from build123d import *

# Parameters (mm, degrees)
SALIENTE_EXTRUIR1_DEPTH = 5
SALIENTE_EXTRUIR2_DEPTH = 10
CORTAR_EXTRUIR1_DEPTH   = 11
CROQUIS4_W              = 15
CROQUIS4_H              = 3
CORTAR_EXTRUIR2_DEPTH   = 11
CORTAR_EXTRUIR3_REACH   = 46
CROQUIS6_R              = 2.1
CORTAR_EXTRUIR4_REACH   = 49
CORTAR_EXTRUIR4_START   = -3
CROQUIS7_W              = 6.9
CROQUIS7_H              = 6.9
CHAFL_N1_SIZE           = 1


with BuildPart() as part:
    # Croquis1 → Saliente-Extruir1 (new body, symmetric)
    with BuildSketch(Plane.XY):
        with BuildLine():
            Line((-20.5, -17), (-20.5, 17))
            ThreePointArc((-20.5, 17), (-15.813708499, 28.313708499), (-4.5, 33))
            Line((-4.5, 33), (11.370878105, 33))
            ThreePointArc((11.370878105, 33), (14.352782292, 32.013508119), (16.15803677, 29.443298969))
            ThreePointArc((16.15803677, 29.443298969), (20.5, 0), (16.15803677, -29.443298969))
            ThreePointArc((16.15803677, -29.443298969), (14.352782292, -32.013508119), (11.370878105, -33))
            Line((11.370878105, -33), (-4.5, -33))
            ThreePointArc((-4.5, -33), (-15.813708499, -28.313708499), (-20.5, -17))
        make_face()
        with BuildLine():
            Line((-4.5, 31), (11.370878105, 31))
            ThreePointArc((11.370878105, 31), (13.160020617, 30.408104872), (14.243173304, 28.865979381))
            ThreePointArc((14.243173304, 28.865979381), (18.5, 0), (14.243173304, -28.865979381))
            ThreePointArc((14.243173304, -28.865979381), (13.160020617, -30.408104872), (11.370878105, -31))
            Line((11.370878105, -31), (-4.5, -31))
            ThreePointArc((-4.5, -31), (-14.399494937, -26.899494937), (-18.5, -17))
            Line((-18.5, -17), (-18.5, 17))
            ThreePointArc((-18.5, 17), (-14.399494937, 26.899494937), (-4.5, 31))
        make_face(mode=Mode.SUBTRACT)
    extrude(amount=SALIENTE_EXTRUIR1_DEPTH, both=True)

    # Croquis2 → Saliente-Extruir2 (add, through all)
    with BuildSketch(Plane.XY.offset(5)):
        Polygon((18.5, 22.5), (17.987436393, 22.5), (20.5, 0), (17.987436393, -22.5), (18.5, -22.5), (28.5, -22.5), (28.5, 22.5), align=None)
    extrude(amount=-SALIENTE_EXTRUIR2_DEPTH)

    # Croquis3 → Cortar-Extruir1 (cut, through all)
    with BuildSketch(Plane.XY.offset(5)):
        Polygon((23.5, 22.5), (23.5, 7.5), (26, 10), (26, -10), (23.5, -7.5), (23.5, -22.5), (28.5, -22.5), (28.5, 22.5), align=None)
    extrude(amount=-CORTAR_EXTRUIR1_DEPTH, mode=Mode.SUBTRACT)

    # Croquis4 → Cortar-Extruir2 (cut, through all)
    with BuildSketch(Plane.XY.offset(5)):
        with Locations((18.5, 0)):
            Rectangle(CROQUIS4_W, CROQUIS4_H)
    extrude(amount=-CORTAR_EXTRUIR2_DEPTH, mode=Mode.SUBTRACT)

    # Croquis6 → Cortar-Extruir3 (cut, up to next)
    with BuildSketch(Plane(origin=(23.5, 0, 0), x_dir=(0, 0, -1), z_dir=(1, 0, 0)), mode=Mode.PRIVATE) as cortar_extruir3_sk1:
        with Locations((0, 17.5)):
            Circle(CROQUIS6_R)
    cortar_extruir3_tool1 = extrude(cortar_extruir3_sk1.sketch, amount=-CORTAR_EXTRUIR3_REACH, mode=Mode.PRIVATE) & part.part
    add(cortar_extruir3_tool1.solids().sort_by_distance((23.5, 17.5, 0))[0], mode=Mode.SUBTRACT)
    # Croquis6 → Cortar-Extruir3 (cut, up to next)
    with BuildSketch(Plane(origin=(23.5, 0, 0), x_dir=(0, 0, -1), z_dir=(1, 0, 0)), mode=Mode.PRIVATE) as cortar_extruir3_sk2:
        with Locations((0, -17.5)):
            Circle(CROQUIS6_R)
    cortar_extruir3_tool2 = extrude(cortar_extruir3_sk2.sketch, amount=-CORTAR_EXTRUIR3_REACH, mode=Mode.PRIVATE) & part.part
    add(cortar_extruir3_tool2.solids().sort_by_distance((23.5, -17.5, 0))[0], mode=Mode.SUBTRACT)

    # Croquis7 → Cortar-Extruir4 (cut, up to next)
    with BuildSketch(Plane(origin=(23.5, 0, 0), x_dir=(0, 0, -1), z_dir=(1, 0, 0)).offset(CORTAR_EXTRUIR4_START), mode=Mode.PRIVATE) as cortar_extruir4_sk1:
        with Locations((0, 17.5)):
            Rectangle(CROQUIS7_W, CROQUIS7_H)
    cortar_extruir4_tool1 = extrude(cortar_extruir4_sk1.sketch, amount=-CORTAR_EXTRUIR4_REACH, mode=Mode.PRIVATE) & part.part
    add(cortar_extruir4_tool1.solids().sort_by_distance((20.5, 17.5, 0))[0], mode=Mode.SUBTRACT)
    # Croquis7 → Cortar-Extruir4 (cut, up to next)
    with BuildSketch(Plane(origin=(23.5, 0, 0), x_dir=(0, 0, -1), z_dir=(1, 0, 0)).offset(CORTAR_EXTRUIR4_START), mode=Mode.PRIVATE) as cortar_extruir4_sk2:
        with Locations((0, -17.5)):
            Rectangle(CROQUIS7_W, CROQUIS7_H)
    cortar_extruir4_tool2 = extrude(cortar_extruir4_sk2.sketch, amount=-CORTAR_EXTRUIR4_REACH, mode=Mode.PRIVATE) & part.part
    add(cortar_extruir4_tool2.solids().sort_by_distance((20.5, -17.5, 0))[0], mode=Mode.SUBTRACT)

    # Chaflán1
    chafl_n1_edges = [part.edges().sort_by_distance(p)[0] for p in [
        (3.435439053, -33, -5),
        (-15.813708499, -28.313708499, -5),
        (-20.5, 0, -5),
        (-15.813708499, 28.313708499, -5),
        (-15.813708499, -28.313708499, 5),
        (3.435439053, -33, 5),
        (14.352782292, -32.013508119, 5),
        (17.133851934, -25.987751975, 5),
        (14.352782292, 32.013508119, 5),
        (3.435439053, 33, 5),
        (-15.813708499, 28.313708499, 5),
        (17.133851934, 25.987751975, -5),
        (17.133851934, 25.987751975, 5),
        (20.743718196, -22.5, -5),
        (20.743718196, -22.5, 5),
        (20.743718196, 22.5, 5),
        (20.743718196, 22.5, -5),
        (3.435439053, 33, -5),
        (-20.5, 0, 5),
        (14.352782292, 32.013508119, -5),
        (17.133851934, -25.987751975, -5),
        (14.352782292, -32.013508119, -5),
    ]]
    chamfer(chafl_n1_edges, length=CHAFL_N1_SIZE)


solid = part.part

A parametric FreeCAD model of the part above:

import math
import FreeCAD as App
import Part
import Sketcher


def edges_at(feature, points):
    """Names of the edges that pass closest to the given points."""
    edges = feature.Shape.Edges
    near = lambda p: min(range(len(edges)), key=lambda i: edges[i].distToShape(Part.Vertex(*p))[0])
    return sorted({f"Edge{near(p) + 1}" for p in points})


def add_polygon(sketch, points):
    """Adds a closed chain of lines whose ends are joined by coincident constraints."""
    first, n = sketch.GeometryCount, len(points)
    for a, b in zip(points, points[1:] + points[:1]):
        sketch.addGeometry(Part.LineSegment(App.Vector(*a, 0), App.Vector(*b, 0)), False)
    for i in range(n):
        sketch.addConstraint(Sketcher.Constraint("Coincident", first + i, 2, first + (i + 1) % n, 1))

doc = App.newDocument("Part")
params = doc.addObject("Spreadsheet::Sheet", "Params")
for row, (alias, value) in enumerate([
    ("sketch1_radius", "16 mm"),
    ("sketch1_radius2", "5 mm"),
    ("sketch1_radius3", "102 mm"),
    ("sketch1_radius4", "3 mm"),
    ("sketch1_height", "34 mm"),
    ("pad1_length", "10 mm"),
    ("sketch2_height", "45 mm"),
    ("pad2_length", "10 mm"),
    ("sketch3_width", "5 mm"),
    ("sketch3_height", "15 mm"),
    ("sketch3_height2", "20 mm"),
    ("sketch3_height3", "45 mm"),
    ("sketch4_width", "15 mm"),
    ("sketch4_height", "3 mm"),
    ("sketch5_diameter", "4.2 mm"),
    ("sketch6_diameter", "4.2 mm"),
    ("sketch7_width", "6.9 mm"),
    ("pocket5_length", "4.219135 mm"),
    ("sketch8_width", "6.9 mm"),
    ("pocket6_length", "4.219135 mm"),
    ("chamfer_size", "1 mm"),
], start=1):
    params.set(f"A{row}", alias)
    params.set(f"B{row}", "=" + value)
    params.setAlias(f"B{row}", alias)

body = doc.addObject("PartDesign::Body", "Body")

# Sketch on XY plane
sketch1 = body.newObject("Sketcher::SketchObject", "Sketch")
sketch1.AttachmentSupport = (doc.getObject("XY_Plane"), [""])
sketch1.MapMode = "FlatFace"
sketch1.addGeometry([
    Part.LineSegment(App.Vector(-20.5, 17, 0), App.Vector(-20.5, -17, 0)),  # 0
    Part.ArcOfCircle(Part.Circle(App.Vector(-4.5, -17, 0), App.Vector(0, 0, 1), 16), math.radians(180), math.radians(270)),  # 1
    Part.LineSegment(App.Vector(-4.5, -33, 0), App.Vector(11.4, -33, 0)),  # 2
    Part.ArcOfCircle(Part.Circle(App.Vector(11.4, -28, 0), App.Vector(0, 0, 1), 5), math.radians(-90), math.radians(-17)),  # 3
    Part.ArcOfCircle(Part.Circle(App.Vector(-81.5, 0, 0), App.Vector(0, 0, 1), 102), math.radians(-17), math.radians(17)),  # 4
    Part.ArcOfCircle(Part.Circle(App.Vector(11.4, 28, 0), App.Vector(0, 0, 1), 5), math.radians(17), math.radians(90)),  # 5
    Part.LineSegment(App.Vector(11.4, 33, 0), App.Vector(-4.5, 33, 0)),  # 6
    Part.ArcOfCircle(Part.Circle(App.Vector(-4.5, 17, 0), App.Vector(0, 0, 1), 16), math.radians(90), math.radians(180)),  # 7
    Part.LineSegment(App.Vector(-4.5, 31, 0), App.Vector(11.4, 31, 0)),  # 8
    Part.ArcOfCircle(Part.Circle(App.Vector(11.4, 28, 0), App.Vector(0, 0, 1), 3), math.radians(17), math.radians(90)),  # 9
    Part.ArcOfCircle(Part.Circle(App.Vector(-81.5, 0, 0), App.Vector(0, 0, 1), 100), math.radians(-17), math.radians(17)),  # 10
    Part.ArcOfCircle(Part.Circle(App.Vector(11.4, -28, 0), App.Vector(0, 0, 1), 3), math.radians(-90), math.radians(-17)),  # 11
    Part.LineSegment(App.Vector(11.4, -31, 0), App.Vector(-4.5, -31, 0)),  # 12
    Part.ArcOfCircle(Part.Circle(App.Vector(-4.5, -17, 0), App.Vector(0, 0, 1), 14), math.radians(180), math.radians(270)),  # 13
    Part.LineSegment(App.Vector(-18.5, -17, 0), App.Vector(-18.5, 17, 0)),  # 14
    Part.ArcOfCircle(Part.Circle(App.Vector(-4.5, 17, 0), App.Vector(0, 0, 1), 14), math.radians(90), math.radians(180)),  # 15
], False)
sketch1.addConstraint([
    Sketcher.Constraint("Tangent", 0, 2, 1, 1),
    Sketcher.Constraint("Tangent", 1, 2, 2, 1),
    Sketcher.Constraint("Tangent", 2, 2, 3, 1),
    Sketcher.Constraint("Tangent", 3, 2, 4, 1),
    Sketcher.Constraint("Tangent", 4, 2, 5, 1),
    Sketcher.Constraint("Tangent", 5, 2, 6, 1),
    Sketcher.Constraint("Tangent", 6, 2, 7, 1),
    Sketcher.Constraint("Tangent", 7, 2, 0, 1),
    Sketcher.Constraint("Tangent", 8, 2, 9, 2),
    Sketcher.Constraint("Tangent", 9, 1, 10, 2),
    Sketcher.Constraint("Tangent", 10, 1, 11, 2),
    Sketcher.Constraint("Tangent", 11, 1, 12, 1),
    Sketcher.Constraint("Tangent", 12, 2, 13, 2),
    Sketcher.Constraint("Tangent", 13, 1, 14, 1),
    Sketcher.Constraint("Tangent", 14, 2, 15, 2),
    Sketcher.Constraint("Tangent", 15, 1, 8, 1),
    Sketcher.Constraint("Vertical", 0),
    Sketcher.Constraint("Horizontal", 2),
    Sketcher.Constraint("Horizontal", 6),
    Sketcher.Constraint("Horizontal", 8),
    Sketcher.Constraint("Horizontal", 12),
    Sketcher.Constraint("Vertical", 14),
    Sketcher.Constraint("Coincident", 9, 3, 5, 3),
    Sketcher.Constraint("Coincident", 10, 3, 4, 3),
    Sketcher.Constraint("Coincident", 11, 3, 3, 3),
    Sketcher.Constraint("Coincident", 13, 3, 1, 3),
    Sketcher.Constraint("Equal", 3, 5),
    Sketcher.Constraint("Equal", 1, 7),
    Sketcher.Constraint("Equal", 13, 15),
    Sketcher.Constraint("Symmetric", 3, 3, 5, 3, -1),
    Sketcher.Constraint("Radius", 1, 16.0),
    Sketcher.Constraint("Radius", 3, 5.0),
    Sketcher.Constraint("Radius", 4, 102.0),
    Sketcher.Constraint("Radius", 9, 3.0),
    Sketcher.Constraint("DistanceY", 0, 2, 0, 1, 34.0),
    Sketcher.Constraint("DistanceX", 4, 3, 1, 3, 77.0),
    Sketcher.Constraint("DistanceX", 1, 3, -1, 1, 4.5),
])
sketch1.setExpression("Constraints[30]", "Params.sketch1_radius")
sketch1.setExpression("Constraints[31]", "Params.sketch1_radius2")
sketch1.setExpression("Constraints[32]", "Params.sketch1_radius3")
sketch1.setExpression("Constraints[33]", "Params.sketch1_radius4")
sketch1.setExpression("Constraints[34]", "Params.sketch1_height")
pad1 = body.newObject("PartDesign::Pad", "Pad")
pad1.Profile = sketch1
pad1.setExpression("Length", "Params.pad1_length")
pad1.Midplane = True

# Sketch on XY plane
sketch2 = body.newObject("Sketcher::SketchObject", "Sketch001")
sketch2.AttachmentSupport = (doc.getObject("XY_Plane"), [""])
sketch2.MapMode = "FlatFace"
sketch2.AttachmentOffset = App.Placement(App.Vector(0, 0, 5), App.Rotation())
add_polygon(sketch2, [(18, 22), (20, 0), (18, -22), (28, -22), (28, 22)])  # lines 0-4
sketch2.addConstraint([
    Sketcher.Constraint("Horizontal", 2),
    Sketcher.Constraint("Vertical", 3),
    Sketcher.Constraint("Horizontal", 4),
    Sketcher.Constraint("Symmetric", 1, 2, 4, 2, -1),
    Sketcher.Constraint("PointOnObject", 0, 2, -1),
    Sketcher.Constraint("DistanceY", 3, 1, 3, 2, 45.0),
    Sketcher.Constraint("DistanceX", 0, 2, 2, 2, 8.0),
    Sketcher.Constraint("DistanceX", -1, 1, 0, 2, 20.5),
    Sketcher.Constraint("DistanceX", 2, 1, 2, 2, 10.512564),
])
sketch2.setExpression("Constraints[10]", "Params.sketch2_height")
pad2 = body.newObject("PartDesign::Pad", "Pad001")
pad2.Profile = sketch2
pad2.setExpression("Length", "Params.pad2_length")
pad2.Reversed = True

# Sketch on XY plane
sketch3 = body.newObject("Sketcher::SketchObject", "Sketch002")
sketch3.AttachmentSupport = (doc.getObject("XY_Plane"), [""])
sketch3.MapMode = "FlatFace"
sketch3.AttachmentOffset = App.Placement(App.Vector(0, 0, 5), App.Rotation())
add_polygon(sketch3, [(23.5, 22.5), (23.5, 7.5), (26, 10), (26, -10), (23.5, -7.5), (23.5, -22.5), (28.5, -22.5), (28.5, 22.5)])  # lines 0-7
sketch3.addConstraint([
    Sketcher.Constraint("Vertical", 0),
    Sketcher.Constraint("Vertical", 2),
    Sketcher.Constraint("Vertical", 4),
    Sketcher.Constraint("Horizontal", 5),
    Sketcher.Constraint("Vertical", 6),
    Sketcher.Constraint("Horizontal", 7),
    Sketcher.Constraint("Symmetric", 0, 2, 3, 2, -1),
    Sketcher.Constraint("Perpendicular", 1, 3),
    Sketcher.Constraint("Equal", 0, 4),
    Sketcher.Constraint("Equal", 1, 3),
    Sketcher.Constraint("DistanceX", 5, 1, 5, 2, 5.0),
    Sketcher.Constraint("DistanceY", 0, 2, 0, 1, 15.0),
    Sketcher.Constraint("DistanceY", 2, 2, 2, 1, 20.0),
    Sketcher.Constraint("DistanceY", 6, 1, 6, 2, 45.0),
    Sketcher.Constraint("DistanceX", -1, 1, 1, 2, 26.0),
])
sketch3.setExpression("Constraints[18]", "Params.sketch3_width")
sketch3.setExpression("Constraints[19]", "Params.sketch3_height")
sketch3.setExpression("Constraints[20]", "Params.sketch3_height2")
sketch3.setExpression("Constraints[21]", "Params.sketch3_height3")
pocket1 = body.newObject("PartDesign::Pocket", "Pocket")
pocket1.Profile = sketch3
pocket1.Type = "ThroughAll"

# Sketch on XY plane
sketch4 = body.newObject("Sketcher::SketchObject", "Sketch003")
sketch4.AttachmentSupport = (doc.getObject("XY_Plane"), [""])
sketch4.MapMode = "FlatFace"
sketch4.AttachmentOffset = App.Placement(App.Vector(0, 0, 5), App.Rotation())
add_polygon(sketch4, [(11, 1.5), (11, -1.5), (26, -1.5), (26, 1.5)])  # lines 0-3
sketch4.addConstraint([
    Sketcher.Constraint("Vertical", 0),
    Sketcher.Constraint("Horizontal", 1),
    Sketcher.Constraint("Vertical", 2),
    Sketcher.Constraint("Horizontal", 3),
    Sketcher.Constraint("DistanceX", 1, 1, 1, 2, 15.0),
    Sketcher.Constraint("DistanceY", 0, 2, 0, 1, 3.0),
    Sketcher.Constraint("DistanceX", -1, 1, 0, 2, 11.0),
    Sketcher.Constraint("DistanceY", 0, 2, -1, 1, 1.5),
])
sketch4.setExpression("Constraints[8]", "Params.sketch4_width")
sketch4.setExpression("Constraints[9]", "Params.sketch4_height")
pocket2 = body.newObject("PartDesign::Pocket", "Pocket001")
pocket2.Profile = sketch4
pocket2.Type = "ThroughAll"

# Sketch on YZ plane
sketch5 = body.newObject("Sketcher::SketchObject", "Sketch004")
sketch5.AttachmentSupport = (doc.getObject("YZ_Plane"), [""])
sketch5.MapMode = "FlatFace"
sketch5.AttachmentOffset = App.Placement(App.Vector(0, 0, 23.5), App.Rotation())
sketch5.addGeometry(Part.Circle(App.Vector(17.5, 0, 0), App.Vector(0, 0, 1), 2.1), False)
sketch5.addConstraint([
    Sketcher.Constraint("PointOnObject", 0, 3, -1),
    Sketcher.Constraint("Diameter", 0, 4.2),
    Sketcher.Constraint("DistanceX", -1, 1, 0, 3, 17.5),
])
sketch5.setExpression("Constraints[1]", "Params.sketch5_diameter")
pocket3 = body.newObject("PartDesign::Pocket", "Pocket002")
pocket3.Profile = sketch5
pocket3.Type = "UpToFirst"

# Sketch on YZ plane
sketch6 = body.newObject("Sketcher::SketchObject", "Sketch005")
sketch6.AttachmentSupport = (doc.getObject("YZ_Plane"), [""])
sketch6.MapMode = "FlatFace"
sketch6.AttachmentOffset = App.Placement(App.Vector(0, 0, 23.5), App.Rotation())
sketch6.addGeometry(Part.Circle(App.Vector(-17.5, 0, 0), App.Vector(0, 0, 1), 2.1), False)
sketch6.addConstraint([
    Sketcher.Constraint("PointOnObject", 0, 3, -1),
    Sketcher.Constraint("Diameter", 0, 4.2),
    Sketcher.Constraint("DistanceX", 0, 3, -1, 1, 17.5),
])
sketch6.setExpression("Constraints[1]", "Params.sketch6_diameter")
pocket4 = body.newObject("PartDesign::Pocket", "Pocket003")
pocket4.Profile = sketch6
pocket4.Type = "UpToFirst"

# Sketch on YZ plane
sketch7 = body.newObject("Sketcher::SketchObject", "Sketch006")
sketch7.AttachmentSupport = (doc.getObject("YZ_Plane"), [""])
sketch7.MapMode = "FlatFace"
sketch7.AttachmentOffset = App.Placement(App.Vector(0, 0, 20.5), App.Rotation())
add_polygon(sketch7, [(21, 3), (14, 3), (14, -3), (21, -3)])  # lines 0-3
sketch7.addConstraint([
    Sketcher.Constraint("Horizontal", 0),
    Sketcher.Constraint("Vertical", 1),
    Sketcher.Constraint("Horizontal", 2),
    Sketcher.Constraint("Vertical", 3),
    Sketcher.Constraint("Equal", 2, 1),
    Sketcher.Constraint("DistanceX", 0, 2, 0, 1, 6.9),
    Sketcher.Constraint("DistanceX", -1, 1, 0, 2, 14.05),
    Sketcher.Constraint("DistanceY", -1, 1, 0, 2, 3.45),
])
sketch7.setExpression("Constraints[9]", "Params.sketch7_width")
pocket5 = body.newObject("PartDesign::Pocket", "Pocket004")
pocket5.Profile = sketch7
pocket5.setExpression("Length", "Params.pocket5_length")

# Sketch on YZ plane
sketch8 = body.newObject("Sketcher::SketchObject", "Sketch007")
sketch8.AttachmentSupport = (doc.getObject("YZ_Plane"), [""])
sketch8.MapMode = "FlatFace"
sketch8.AttachmentOffset = App.Placement(App.Vector(0, 0, 20.5), App.Rotation())
add_polygon(sketch8, [(-14, 3), (-21, 3), (-21, -3), (-14, -3)])  # lines 0-3
sketch8.addConstraint([
    Sketcher.Constraint("Horizontal", 0),
    Sketcher.Constraint("Vertical", 1),
    Sketcher.Constraint("Horizontal", 2),
    Sketcher.Constraint("Vertical", 3),
    Sketcher.Constraint("Equal", 2, 1),
    Sketcher.Constraint("DistanceX", 0, 2, 0, 1, 6.9),
    Sketcher.Constraint("DistanceX", 0, 2, -1, 1, 20.95),
    Sketcher.Constraint("DistanceY", -1, 1, 0, 2, 3.45),
])
sketch8.setExpression("Constraints[9]", "Params.sketch8_width")
pocket6 = body.newObject("PartDesign::Pocket", "Pocket005")
pocket6.Profile = sketch8
pocket6.setExpression("Length", "Params.pocket6_length")
doc.recompute()

chamfer = body.newObject("PartDesign::Chamfer", "Chamfer")
chamfer.Base = (pocket6, edges_at(pocket6, [
    (3.435, -33, -5),
    (-15.814, -28.314, -5),
    (-20.5, 0, -5),
    (-15.814, 28.314, -5),
    (-15.814, -28.314, 5),
    (3.435, -33, 5),
    (14.353, -32.014, 5),
    (17.134, -25.988, 5),
    (14.353, 32.014, 5),
    (3.435, 33, 5),
    (-15.814, 28.314, 5),
    (17.134, 25.988, -5),
    (17.134, 25.988, 5),
    (20.744, -22.5, -5),
    (20.744, -22.5, 5),
    (20.744, 22.5, 5),
    (20.744, 22.5, -5),
    (3.435, 33, -5),
    (-20.5, 0, 5),
    (14.353, 32.014, -5),
    (17.134, -25.988, -5),
    (14.353, -32.014, -5),
]))
chamfer.setExpression("Size", "Params.chamfer_size")

doc.recompute()
